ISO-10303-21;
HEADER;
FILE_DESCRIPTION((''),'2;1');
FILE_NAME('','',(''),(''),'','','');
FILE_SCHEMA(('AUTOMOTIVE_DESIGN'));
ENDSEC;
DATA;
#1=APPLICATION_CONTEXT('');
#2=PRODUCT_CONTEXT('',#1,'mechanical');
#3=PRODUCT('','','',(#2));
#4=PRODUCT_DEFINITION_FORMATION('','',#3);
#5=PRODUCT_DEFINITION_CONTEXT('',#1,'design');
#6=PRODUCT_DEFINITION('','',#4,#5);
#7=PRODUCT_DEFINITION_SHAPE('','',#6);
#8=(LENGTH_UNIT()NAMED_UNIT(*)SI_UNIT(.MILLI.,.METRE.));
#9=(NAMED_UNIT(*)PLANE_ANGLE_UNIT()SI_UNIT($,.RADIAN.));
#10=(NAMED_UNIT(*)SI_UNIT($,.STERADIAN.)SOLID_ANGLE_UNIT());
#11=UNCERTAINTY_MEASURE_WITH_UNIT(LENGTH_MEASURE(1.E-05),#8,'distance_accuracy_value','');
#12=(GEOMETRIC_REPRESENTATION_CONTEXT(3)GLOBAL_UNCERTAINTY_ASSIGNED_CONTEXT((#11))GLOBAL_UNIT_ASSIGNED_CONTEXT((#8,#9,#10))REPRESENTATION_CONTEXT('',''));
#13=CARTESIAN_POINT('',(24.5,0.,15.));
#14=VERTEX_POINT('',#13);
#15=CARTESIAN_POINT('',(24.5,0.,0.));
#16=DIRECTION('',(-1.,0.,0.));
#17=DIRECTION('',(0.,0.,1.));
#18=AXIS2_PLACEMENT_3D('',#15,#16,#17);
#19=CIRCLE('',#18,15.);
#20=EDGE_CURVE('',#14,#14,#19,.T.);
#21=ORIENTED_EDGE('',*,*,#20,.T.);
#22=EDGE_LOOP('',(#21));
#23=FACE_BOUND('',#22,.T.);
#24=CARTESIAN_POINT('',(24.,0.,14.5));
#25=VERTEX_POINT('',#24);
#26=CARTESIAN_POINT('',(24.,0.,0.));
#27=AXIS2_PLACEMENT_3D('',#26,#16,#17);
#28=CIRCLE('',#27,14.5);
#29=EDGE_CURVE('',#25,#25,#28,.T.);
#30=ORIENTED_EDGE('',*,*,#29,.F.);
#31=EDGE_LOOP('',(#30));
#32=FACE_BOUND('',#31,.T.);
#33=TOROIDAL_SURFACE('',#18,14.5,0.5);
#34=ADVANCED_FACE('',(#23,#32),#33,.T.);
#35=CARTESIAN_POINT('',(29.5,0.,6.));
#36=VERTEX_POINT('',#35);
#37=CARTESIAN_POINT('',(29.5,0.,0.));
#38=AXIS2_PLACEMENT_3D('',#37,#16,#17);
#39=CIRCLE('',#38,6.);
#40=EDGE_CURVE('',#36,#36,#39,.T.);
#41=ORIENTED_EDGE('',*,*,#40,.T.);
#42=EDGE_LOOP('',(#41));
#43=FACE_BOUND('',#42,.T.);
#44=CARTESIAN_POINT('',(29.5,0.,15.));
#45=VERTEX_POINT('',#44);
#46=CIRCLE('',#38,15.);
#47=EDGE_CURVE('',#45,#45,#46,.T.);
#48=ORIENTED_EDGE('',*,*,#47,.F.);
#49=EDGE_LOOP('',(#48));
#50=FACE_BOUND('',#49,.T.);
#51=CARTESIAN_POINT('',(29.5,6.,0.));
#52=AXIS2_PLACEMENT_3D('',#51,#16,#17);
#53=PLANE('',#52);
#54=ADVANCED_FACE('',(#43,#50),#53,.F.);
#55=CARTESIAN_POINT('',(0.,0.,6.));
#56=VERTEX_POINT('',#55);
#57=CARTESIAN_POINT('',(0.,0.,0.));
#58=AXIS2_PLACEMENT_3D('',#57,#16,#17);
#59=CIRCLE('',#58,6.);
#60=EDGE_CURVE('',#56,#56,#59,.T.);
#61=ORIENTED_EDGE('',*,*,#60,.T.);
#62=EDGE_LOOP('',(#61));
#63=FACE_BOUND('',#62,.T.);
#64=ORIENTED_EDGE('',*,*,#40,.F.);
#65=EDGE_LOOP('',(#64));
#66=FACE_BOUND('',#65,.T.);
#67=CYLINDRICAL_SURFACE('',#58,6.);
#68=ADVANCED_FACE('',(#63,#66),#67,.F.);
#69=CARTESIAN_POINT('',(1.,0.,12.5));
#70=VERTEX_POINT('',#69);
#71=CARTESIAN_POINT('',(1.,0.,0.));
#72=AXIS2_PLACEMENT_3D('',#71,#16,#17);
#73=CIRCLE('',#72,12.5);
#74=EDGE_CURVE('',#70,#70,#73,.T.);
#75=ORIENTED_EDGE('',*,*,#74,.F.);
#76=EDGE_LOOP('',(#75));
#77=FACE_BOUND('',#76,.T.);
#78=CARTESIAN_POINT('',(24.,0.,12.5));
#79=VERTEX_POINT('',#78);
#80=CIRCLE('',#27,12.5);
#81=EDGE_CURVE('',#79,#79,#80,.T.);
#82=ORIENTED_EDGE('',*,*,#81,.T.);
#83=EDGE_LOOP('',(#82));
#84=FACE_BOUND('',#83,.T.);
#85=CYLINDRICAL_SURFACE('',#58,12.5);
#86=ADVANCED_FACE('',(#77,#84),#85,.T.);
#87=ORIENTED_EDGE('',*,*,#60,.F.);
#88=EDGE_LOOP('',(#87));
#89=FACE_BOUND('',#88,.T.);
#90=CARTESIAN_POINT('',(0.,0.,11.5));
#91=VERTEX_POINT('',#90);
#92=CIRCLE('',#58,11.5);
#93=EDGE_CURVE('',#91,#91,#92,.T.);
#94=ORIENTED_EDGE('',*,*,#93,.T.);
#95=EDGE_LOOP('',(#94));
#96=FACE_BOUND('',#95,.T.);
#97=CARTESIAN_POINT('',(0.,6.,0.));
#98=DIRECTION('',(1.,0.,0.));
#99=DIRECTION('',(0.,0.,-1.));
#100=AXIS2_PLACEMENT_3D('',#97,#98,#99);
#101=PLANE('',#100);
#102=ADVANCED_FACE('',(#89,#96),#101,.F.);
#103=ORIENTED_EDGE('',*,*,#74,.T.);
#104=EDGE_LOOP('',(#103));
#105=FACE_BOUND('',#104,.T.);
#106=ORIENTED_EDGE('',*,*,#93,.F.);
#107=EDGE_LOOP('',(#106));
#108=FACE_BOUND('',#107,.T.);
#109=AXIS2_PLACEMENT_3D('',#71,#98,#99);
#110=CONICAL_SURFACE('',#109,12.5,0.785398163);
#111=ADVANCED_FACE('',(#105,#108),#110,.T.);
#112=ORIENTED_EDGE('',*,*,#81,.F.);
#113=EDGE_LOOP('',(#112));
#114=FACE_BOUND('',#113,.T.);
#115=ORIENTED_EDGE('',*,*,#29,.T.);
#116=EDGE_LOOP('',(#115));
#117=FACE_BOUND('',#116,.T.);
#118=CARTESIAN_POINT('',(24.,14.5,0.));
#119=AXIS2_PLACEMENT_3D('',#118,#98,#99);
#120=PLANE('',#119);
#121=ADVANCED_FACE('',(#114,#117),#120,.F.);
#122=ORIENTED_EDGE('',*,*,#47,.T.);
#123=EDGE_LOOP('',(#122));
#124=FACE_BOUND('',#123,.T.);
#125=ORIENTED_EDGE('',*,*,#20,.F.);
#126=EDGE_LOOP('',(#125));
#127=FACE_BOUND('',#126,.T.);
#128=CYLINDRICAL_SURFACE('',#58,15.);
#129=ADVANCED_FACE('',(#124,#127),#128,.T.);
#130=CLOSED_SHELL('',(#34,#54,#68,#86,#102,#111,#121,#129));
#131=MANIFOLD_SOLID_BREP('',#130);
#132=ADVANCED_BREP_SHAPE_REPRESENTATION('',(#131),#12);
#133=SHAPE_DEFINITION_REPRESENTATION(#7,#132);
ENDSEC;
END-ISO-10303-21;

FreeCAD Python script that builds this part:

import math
import FreeCAD as App
import Part
import Sketcher
Q = App.Units.Quantity

doc = App.newDocument("Part")
body = doc.addObject("PartDesign::Body", "Body")

# Sketch on XY plane
sketch1 = body.newObject("Sketcher::SketchObject", "Sketch")
sketch1.AttachmentSupport = (doc.getObject("XY_Plane"), [""])
sketch1.MapMode = "FlatFace"
sketch1.addGeometry([
    Part.LineSegment(App.Vector(0, 6, 0), App.Vector(29.5, 6, 0)),  # 0
    Part.LineSegment(App.Vector(29.5, 6, 0), App.Vector(29.5, 15, 0)),  # 1
    Part.LineSegment(App.Vector(29.5, 15, 0), App.Vector(24.5, 15, 0)),  # 2
    Part.ArcOfCircle(Part.Circle(App.Vector(24.5, 14.5, 0), App.Vector(0, 0, 1), 0.5), math.radians(90), math.radians(180)),  # 3
    Part.LineSegment(App.Vector(24, 14.5, 0), App.Vector(24, 12.5, 0)),  # 4
    Part.LineSegment(App.Vector(24, 12.5, 0), App.Vector(1, 12.5, 0)),  # 5
    Part.LineSegment(App.Vector(1, 12.5, 0), App.Vector(0, 11.5, 0)),  # 6
    Part.LineSegment(App.Vector(0, 11.5, 0), App.Vector(0, 6, 0)),  # 7
], False)
sketch1.addConstraint([
    Sketcher.Constraint("Coincident", 0, 2, 1, 1),
    Sketcher.Constraint("Coincident", 1, 2, 2, 1),
    Sketcher.Constraint("Tangent", 2, 2, 3, 1),
    Sketcher.Constraint("Tangent", 3, 2, 4, 1),
    Sketcher.Constraint("Coincident", 4, 2, 5, 1),
    Sketcher.Constraint("Coincident", 5, 2, 6, 1),
    Sketcher.Constraint("Coincident", 6, 2, 7, 1),
    Sketcher.Constraint("Coincident", 7, 2, 0, 1),
    Sketcher.Constraint("Horizontal", 0),
    Sketcher.Constraint("Vertical", 1),
    Sketcher.Constraint("Horizontal", 2),
    Sketcher.Constraint("Vertical", 4),
    Sketcher.Constraint("Horizontal", 5),
    Sketcher.Constraint("Vertical", 7),
    Sketcher.Constraint("PointOnObject", 6, 2, -2),
    Sketcher.Constraint("Radius", 3, Q("0.5 mm")),
    Sketcher.Constraint("DistanceX", 2, 2, 2, 1, Q("5 mm")),
    Sketcher.Constraint("DistanceX", 5, 2, 5, 1, Q("23 mm")),
    Sketcher.Constraint("DistanceY", 1, 1, 1, 2, Q("9 mm")),
    Sketcher.Constraint("DistanceY", 4, 2, 4, 1, Q("2 mm")),
    Sketcher.Constraint("Angle", 6, Q("-135 deg")),
    Sketcher.Constraint("DistanceX", 0, 1, 0, 2, Q("29.5 mm")),
    Sketcher.Constraint("DistanceY", -1, 1, 0, 2, Q("6 mm")),
])
revolution = body.newObject("PartDesign::Revolution", "Revolution")
revolution.Profile = sketch1
revolution.ReferenceAxis = (sketch1, ["H_Axis"])
revolution.Angle = 360

doc.recompute()
